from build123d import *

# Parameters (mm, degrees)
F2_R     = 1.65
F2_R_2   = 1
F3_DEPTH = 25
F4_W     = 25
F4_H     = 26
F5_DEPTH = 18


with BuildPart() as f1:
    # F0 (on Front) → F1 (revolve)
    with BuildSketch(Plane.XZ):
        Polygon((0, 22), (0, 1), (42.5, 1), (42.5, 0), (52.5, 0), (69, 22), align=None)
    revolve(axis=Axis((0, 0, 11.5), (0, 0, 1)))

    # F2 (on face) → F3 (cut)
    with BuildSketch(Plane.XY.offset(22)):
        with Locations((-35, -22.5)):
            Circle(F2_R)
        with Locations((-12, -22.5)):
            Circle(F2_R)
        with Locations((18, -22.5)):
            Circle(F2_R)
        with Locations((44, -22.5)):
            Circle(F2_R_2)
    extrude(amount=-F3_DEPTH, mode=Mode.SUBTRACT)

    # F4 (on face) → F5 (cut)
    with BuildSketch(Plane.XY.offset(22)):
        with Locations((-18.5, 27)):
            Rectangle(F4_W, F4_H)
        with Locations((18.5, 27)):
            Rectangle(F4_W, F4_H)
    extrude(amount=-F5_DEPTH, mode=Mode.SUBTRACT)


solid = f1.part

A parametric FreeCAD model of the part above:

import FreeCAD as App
import Part
import Sketcher
from FreeCAD import Vector

doc = App.newDocument("Part")
body = doc.addObject("PartDesign::Body", "Body")

sketch1 = doc.addObject("Sketcher::SketchObject", "Sketch")
body.addObject(sketch1)
sketch1.AttachmentSupport = (doc.XZ_Plane, [""])
sketch1.MapMode = "FlatFace"
sketch1.addGeometry([
    Part.LineSegment(Vector(0, 22, 0), Vector(0, 1, 0)),
    Part.LineSegment(Vector(0, 1, 0), Vector(42.5, 1, 0)),
    Part.LineSegment(Vector(42.5, 1, 0), Vector(42.5, 0, 0)),
    Part.LineSegment(Vector(42.5, 0, 0), Vector(52.5, 0, 0)),
    Part.LineSegment(Vector(52.5, 0, 0), Vector(69, 22, 0)),
    Part.LineSegment(Vector(69, 22, 0), Vector(0, 22, 0)),
], False)
sketch1.addConstraint([
    Sketcher.Constraint("Coincident", 0, 2, 1, 1),
    Sketcher.Constraint("Coincident", 1, 2, 2, 1),
    Sketcher.Constraint("Coincident", 2, 2, 3, 1),
    Sketcher.Constraint("Coincident", 3, 2, 4, 1),
    Sketcher.Constraint("Coincident", 4, 2, 5, 1),
    Sketcher.Constraint("Coincident", 5, 2, 0, 1),
    Sketcher.Constraint("Vertical", 0),
    Sketcher.Constraint("Horizontal", 1),
    Sketcher.Constraint("Vertical", 2),
    Sketcher.Constraint("Horizontal", 3),
    Sketcher.Constraint("Horizontal", 5),
    Sketcher.Constraint("PointOnObject", 0, 2, -2),
    Sketcher.Constraint("PointOnObject", 2, 2, -1),
    Sketcher.Constraint("DistanceX", 3, 1, 3, 2, 10.0),
    Sketcher.Constraint("DistanceX", 5, 2, 5, 1, 69.0),
    Sketcher.Constraint("DistanceY", 0, 2, 0, 1, 21.0),
    Sketcher.Constraint("DistanceY", 2, 2, 2, 1, 1.0),
    Sketcher.Constraint("DistanceX", 1, 1, 1, 2, 42.5),
])
revolution = doc.addObject("PartDesign::Revolution", "Revolution")
body.addObject(revolution)
revolution.Profile = sketch1
revolution.ReferenceAxis = (sketch1, ["V_Axis"])
revolution.Angle = 360

sketch2 = doc.addObject("Sketcher::SketchObject", "Sketch001")
body.addObject(sketch2)
sketch2.AttachmentSupport = (doc.XY_Plane, [""])
sketch2.MapMode = "FlatFace"
sketch2.AttachmentOffset = App.Placement(Vector(0, 0, 22), App.Rotation())
sketch2.addGeometry([
    Part.Circle(Vector(-35, -22.5, 0), Vector(0, 0, 1), 1.6),
    Part.Circle(Vector(-12, -22.5, 0), Vector(0, 0, 1), 1.6),
    Part.Circle(Vector(18, -22.5, 0), Vector(0, 0, 1), 1.6),
    Part.Circle(Vector(44, -22.5, 0), Vector(0, 0, 1), 1),
], False)
sketch2.addConstraint([
    Sketcher.Constraint("Equal", 0, 1),
    Sketcher.Constraint("Equal", 1, 2),
    Sketcher.Constraint("Horizontal", 0, 3, 1, 3),
    Sketcher.Constraint("Horizontal", 1, 3, 2, 3),
    Sketcher.Constraint("Horizontal", 2, 3, 3, 3),
    Sketcher.Constraint("Diameter", 3, 2.0),
    Sketcher.Constraint("Diameter", 0, 3.3),
    Sketcher.Constraint("DistanceX", 0, 3, -1, 1, 35.0),
    Sketcher.Constraint("DistanceX", 1, 3, -1, 1, 12.0),
    Sketcher.Constraint("DistanceX", -1, 1, 2, 3, 18.0),
    Sketcher.Constraint("DistanceX", -1, 1, 3, 3, 44.0),
    Sketcher.Constraint("DistanceY", 0, 3, -1, 1, 22.5),
])
pocket1 = doc.addObject("PartDesign::Pocket", "Pocket")
body.addObject(pocket1)
pocket1.Profile = sketch2
pocket1.Length = 25

sketch3 = doc.addObject("Sketcher::SketchObject", "Sketch002")
body.addObject(sketch3)
sketch3.AttachmentSupport = (doc.XY_Plane, [""])
sketch3.MapMode = "FlatFace"
sketch3.AttachmentOffset = App.Placement(Vector(0, 0, 22), App.Rotation())
sketch3.addGeometry([
    Part.LineSegment(Vector(-31, 40, 0), Vector(-31, 14, 0)),
    Part.LineSegment(Vector(-31, 14, 0), Vector(-6, 14, 0)),
    Part.LineSegment(Vector(-6, 14, 0), Vector(-6, 40, 0)),
    Part.LineSegment(Vector(-6, 40, 0), Vector(-31, 40, 0)),
    Part.LineSegment(Vector(6, 40, 0), Vector(6, 14, 0)),
    Part.LineSegment(Vector(6, 14, 0), Vector(31, 14, 0)),
    Part.LineSegment(Vector(31, 14, 0), Vector(31, 40, 0)),
    Part.LineSegment(Vector(31, 40, 0), Vector(6, 40, 0)),
], False)
sketch3.addConstraint([
    Sketcher.Constraint("Coincident", 0, 2, 1, 1),
    Sketcher.Constraint("Coincident", 1, 2, 2, 1),
    Sketcher.Constraint("Coincident", 2, 2, 3, 1),
    Sketcher.Constraint("Coincident", 3, 2, 0, 1),
    Sketcher.Constraint("Coincident", 4, 2, 5, 1),
    Sketcher.Constraint("Coincident", 5, 2, 6, 1),
    Sketcher.Constraint("Coincident", 6, 2, 7, 1),
    Sketcher.Constraint("Coincident", 7, 2, 4, 1),
    Sketcher.Constraint("Vertical", 0),
    Sketcher.Constraint("Horizontal", 1),
    Sketcher.Constraint("Vertical", 2),
    Sketcher.Constraint("Horizontal", 3),
    Sketcher.Constraint("Vertical", 4),
    Sketcher.Constraint("Horizontal", 5),
    Sketcher.Constraint("Vertical", 6),
    Sketcher.Constraint("Horizontal", 7),
    Sketcher.Constraint("Symmetric", 1, 2, 4, 2, -2),
    Sketcher.Constraint("Symmetric", 3, 2, 6, 2, -2),
    Sketcher.Constraint("DistanceX", 1, 1, 1, 2, 25.0),
    Sketcher.Constraint("DistanceY", 0, 2, 0, 1, 26.0),
    Sketcher.Constraint("DistanceX", 0, 2, -1, 1, 31.0),
    Sketcher.Constraint("DistanceY", -1, 1, 0, 2, 14.0),
])
pocket2 = doc.addObject("PartDesign::Pocket", "Pocket001")
body.addObject(pocket2)
pocket2.Profile = sketch3
pocket2.Length = 18

doc.recompute()
